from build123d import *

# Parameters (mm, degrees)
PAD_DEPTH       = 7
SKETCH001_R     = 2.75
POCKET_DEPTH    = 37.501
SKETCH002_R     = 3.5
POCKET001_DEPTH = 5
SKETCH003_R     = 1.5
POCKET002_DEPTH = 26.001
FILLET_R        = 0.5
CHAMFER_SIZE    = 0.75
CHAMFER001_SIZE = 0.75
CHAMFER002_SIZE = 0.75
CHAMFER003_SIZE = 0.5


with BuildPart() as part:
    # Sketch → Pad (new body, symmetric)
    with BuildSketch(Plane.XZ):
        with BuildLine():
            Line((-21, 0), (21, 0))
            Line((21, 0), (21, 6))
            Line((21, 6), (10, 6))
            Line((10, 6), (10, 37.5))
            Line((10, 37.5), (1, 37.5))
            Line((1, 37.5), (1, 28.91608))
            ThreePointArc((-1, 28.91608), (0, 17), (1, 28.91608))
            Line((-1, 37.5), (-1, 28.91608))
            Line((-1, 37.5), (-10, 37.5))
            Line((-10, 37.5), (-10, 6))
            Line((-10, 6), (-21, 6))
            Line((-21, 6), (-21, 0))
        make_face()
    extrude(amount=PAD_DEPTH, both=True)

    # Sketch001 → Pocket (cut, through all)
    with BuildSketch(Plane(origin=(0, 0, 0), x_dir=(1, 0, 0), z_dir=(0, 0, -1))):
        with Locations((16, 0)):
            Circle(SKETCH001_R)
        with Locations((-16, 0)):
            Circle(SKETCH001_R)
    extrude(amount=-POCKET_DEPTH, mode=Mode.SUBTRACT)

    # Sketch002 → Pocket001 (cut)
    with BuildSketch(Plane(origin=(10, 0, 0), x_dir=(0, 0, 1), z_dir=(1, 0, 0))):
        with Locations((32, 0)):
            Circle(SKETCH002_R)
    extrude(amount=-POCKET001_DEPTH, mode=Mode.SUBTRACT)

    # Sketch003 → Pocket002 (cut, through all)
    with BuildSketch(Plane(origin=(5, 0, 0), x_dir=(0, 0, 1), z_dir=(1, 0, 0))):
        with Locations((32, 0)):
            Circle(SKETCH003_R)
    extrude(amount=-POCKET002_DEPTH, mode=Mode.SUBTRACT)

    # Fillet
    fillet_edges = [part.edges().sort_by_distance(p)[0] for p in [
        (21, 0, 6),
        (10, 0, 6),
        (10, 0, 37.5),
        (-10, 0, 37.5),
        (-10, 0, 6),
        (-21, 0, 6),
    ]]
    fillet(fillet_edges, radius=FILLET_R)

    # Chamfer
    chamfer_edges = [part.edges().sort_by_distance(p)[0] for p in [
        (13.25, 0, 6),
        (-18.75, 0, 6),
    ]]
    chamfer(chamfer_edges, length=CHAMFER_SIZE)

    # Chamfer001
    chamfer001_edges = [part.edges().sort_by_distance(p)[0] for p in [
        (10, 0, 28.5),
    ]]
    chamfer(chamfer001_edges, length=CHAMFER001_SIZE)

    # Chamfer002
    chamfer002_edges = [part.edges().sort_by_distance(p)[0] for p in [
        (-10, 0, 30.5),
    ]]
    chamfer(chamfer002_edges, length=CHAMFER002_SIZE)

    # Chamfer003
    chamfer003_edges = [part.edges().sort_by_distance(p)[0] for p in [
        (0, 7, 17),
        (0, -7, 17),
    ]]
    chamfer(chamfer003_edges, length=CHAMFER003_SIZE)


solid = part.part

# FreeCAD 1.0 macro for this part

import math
import FreeCAD as App
import Part
import Sketcher

V = App.Vector
Q = App.Units.Quantity


def edges_at(feature, points):
    """Names of the edges that pass closest to the given points."""
    edges = feature.Shape.Edges
    near = lambda p: min(range(len(edges)), key=lambda i: edges[i].distToShape(Part.Vertex(*p))[0])
    return sorted({f"Edge{near(p) + 1}" for p in points})

doc = App.newDocument("Part")
params = doc.addObject("Spreadsheet::Sheet", "Params")
for row, (alias, value) in enumerate([
    ("sketch1_radius", "6 mm"),
    ("sketch1_width", "42 mm"),
    ("sketch1_width2", "11 mm"),
    ("sketch1_width3", "9 mm"),
    ("sketch1_height", "6 mm"),
    ("pad1_length", "14 mm"),
    ("sketch2_diameter", "5.5 mm"),
    ("sketch3_diameter", "7 mm"),
    ("pocket2_length", "5 mm"),
    ("sketch4_diameter", "3 mm"),
    ("fillet_radius", "0.5 mm"),
    ("chamfer_size", "0.75 mm"),
    ("chamfer2_size", "0.75 mm"),
    ("chamfer3_size", "0.75 mm"),
    ("chamfer4_size", "0.5 mm"),
], start=1):
    params.set(f"A{row}", alias)
    params.set(f"B{row}", "=" + value)
    params.setAlias(f"B{row}", alias)

body = doc.addObject("PartDesign::Body", "Body")

# Sketch on XZ plane
sketch1 = doc.addObject("Sketcher::SketchObject", "Sketch")
body.addObject(sketch1)
sketch1.AttachmentSupport = (doc.XZ_Plane, [""])
sketch1.MapMode = "FlatFace"
sketch1.addGeometry([
    Part.LineSegment(V(-21, 0, 0), V(21, 0, 0)),  # 0
    Part.LineSegment(V(21, 0, 0), V(21, 6, 0)),  # 1
    Part.LineSegment(V(21, 6, 0), V(10, 6, 0)),  # 2
    Part.LineSegment(V(10, 6, 0), V(10, 37.5, 0)),  # 3
    Part.LineSegment(V(10, 37.5, 0), V(1, 37.5, 0)),  # 4
    Part.LineSegment(V(1, 37.5, 0), V(1, 28.9, 0)),  # 5
    Part.ArcOfCircle(Part.Circle(V(0, 23, 0), V(0, 0, 1), 6), math.radians(100), math.radians(440)),  # 6
    Part.LineSegment(V(-1, 28.9, 0), V(-1, 37.5, 0)),  # 7
    Part.LineSegment(V(-1, 37.5, 0), V(-10, 37.5, 0)),  # 8
    Part.LineSegment(V(-10, 37.5, 0), V(-10, 6, 0)),  # 9
    Part.LineSegment(V(-10, 6, 0), V(-21, 6, 0)),  # 10
    Part.LineSegment(V(-21, 6, 0), V(-21, 0, 0)),  # 11
], False)
sketch1.addConstraint([
    Sketcher.Constraint("Coincident", 0, 2, 1, 1),
    Sketcher.Constraint("Coincident", 1, 2, 2, 1),
    Sketcher.Constraint("Coincident", 2, 2, 3, 1),
    Sketcher.Constraint("Coincident", 3, 2, 4, 1),
    Sketcher.Constraint("Coincident", 4, 2, 5, 1),
    Sketcher.Constraint("Coincident", 5, 2, 6, 2),
    Sketcher.Constraint("Coincident", 6, 1, 7, 1),
    Sketcher.Constraint("Coincident", 7, 2, 8, 1),
    Sketcher.Constraint("Coincident", 8, 2, 9, 1),
    Sketcher.Constraint("Coincident", 9, 2, 10, 1),
    Sketcher.Constraint("Coincident", 10, 2, 11, 1),
    Sketcher.Constraint("Coincident", 11, 2, 0, 1),
    Sketcher.Constraint("Horizontal", 0),
    Sketcher.Constraint("Vertical", 1),
    Sketcher.Constraint("Horizontal", 2),
    Sketcher.Constraint("Vertical", 3),
    Sketcher.Constraint("Horizontal", 4),
    Sketcher.Constraint("Vertical", 5),
    Sketcher.Constraint("Vertical", 7),
    Sketcher.Constraint("Horizontal", 8),
    Sketcher.Constraint("Vertical", 9),
    Sketcher.Constraint("Horizontal", 10),
    Sketcher.Constraint("Vertical", 11),
    Sketcher.Constraint("Symmetric", 0, 2, 11, 2, -1, 1),
    Sketcher.Constraint("Symmetric", 5, 2, 6, 1, -2),
    Sketcher.Constraint("Symmetric", 3, 2, 8, 2, -2),
    Sketcher.Constraint("Horizontal", 2, 2, 9, 2),
    Sketcher.Constraint("Radius", 6, Q("6 mm")),
    Sketcher.Constraint("DistanceX", 0, 1, 0, 2, Q("42 mm")),
    Sketcher.Constraint("DistanceX", 2, 2, 2, 1, Q("11 mm")),
    Sketcher.Constraint("DistanceX", 4, 2, 4, 1, Q("9 mm")),
    Sketcher.Constraint("DistanceY", 1, 1, 1, 2, Q("6 mm")),
    Sketcher.Constraint("DistanceY", 3, 1, 3, 2, Q("31.5 mm")),
    Sketcher.Constraint("DistanceY", -1, 1, 6, 3, Q("23 mm")),
])
sketch1.setExpression("Constraints[27]", "Params.sketch1_radius")
sketch1.setExpression("Constraints[28]", "Params.sketch1_width")
sketch1.setExpression("Constraints[29]", "Params.sketch1_width2")
sketch1.setExpression("Constraints[30]", "Params.sketch1_width3")
sketch1.setExpression("Constraints[31]", "Params.sketch1_height")
pad1 = doc.addObject("PartDesign::Pad", "Pad")
body.addObject(pad1)
pad1.Profile = sketch1
pad1.setExpression("Length", "Params.pad1_length")
pad1.Midplane = True

# Sketch on XY plane
sketch2 = doc.addObject("Sketcher::SketchObject", "Sketch001")
body.addObject(sketch2)
sketch2.AttachmentSupport = (doc.XY_Plane, [""])
sketch2.MapMode = "FlatFace"
sketch2.addGeometry([
    Part.Circle(V(16, 0, 0), V(0, 0, 1), 2.8),
    Part.Circle(V(-16, 0, 0), V(0, 0, 1), 2.8),
], False)
sketch2.addConstraint([
    Sketcher.Constraint("Equal", 0, 1),
    Sketcher.Constraint("Symmetric", 0, 3, 1, 3, -1, 1),
    Sketcher.Constraint("PointOnObject", 0, 3, -1),
    Sketcher.Constraint("Diameter", 0, Q("5.5 mm")),
    Sketcher.Constraint("DistanceX", -1, 1, 0, 3, Q("16 mm")),
])
sketch2.setExpression("Constraints[3]", "Params.sketch2_diameter")
pocket1 = doc.addObject("PartDesign::Pocket", "Pocket")
body.addObject(pocket1)
pocket1.Profile = sketch2
pocket1.Type = "ThroughAll"
pocket1.Reversed = True

# Sketch on YZ plane
sketch3 = doc.addObject("Sketcher::SketchObject", "Sketch002")
body.addObject(sketch3)
sketch3.AttachmentSupport = (doc.YZ_Plane, [""])
sketch3.MapMode = "FlatFace"
sketch3.AttachmentOffset = App.Placement(V(0, 0, 10), App.Rotation())
sketch3.addGeometry(Part.Circle(V(0, 32, 0), V(0, 0, 1), 3.5), False)
sketch3.addConstraint([
    Sketcher.Constraint("PointOnObject", 0, 3, -2),
    Sketcher.Constraint("Diameter", 0, Q("7 mm")),
    Sketcher.Constraint("DistanceY", -1, 1, 0, 3, Q("32 mm")),
])
sketch3.setExpression("Constraints[1]", "Params.sketch3_diameter")
pocket2 = doc.addObject("PartDesign::Pocket", "Pocket001")
body.addObject(pocket2)
pocket2.Profile = sketch3
pocket2.setExpression("Length", "Params.pocket2_length")

# Sketch on YZ plane
sketch4 = doc.addObject("Sketcher::SketchObject", "Sketch003")
body.addObject(sketch4)
sketch4.AttachmentSupport = (doc.YZ_Plane, [""])
sketch4.MapMode = "FlatFace"
sketch4.AttachmentOffset = App.Placement(V(0, 0, 5), App.Rotation())
sketch4.addGeometry(Part.Circle(V(0, 32, 0), V(0, 0, 1), 1.5), False)
sketch4.addConstraint([
    Sketcher.Constraint("PointOnObject", 0, 3, -2),
    Sketcher.Constraint("Diameter", 0, Q("3 mm")),
    Sketcher.Constraint("DistanceY", -1, 1, 0, 3, Q("32 mm")),
])
sketch4.setExpression("Constraints[1]", "Params.sketch4_diameter")
pocket3 = doc.addObject("PartDesign::Pocket", "Pocket002")
body.addObject(pocket3)
pocket3.Profile = sketch4
pocket3.Type = "ThroughAll"
doc.recompute()

fillet = doc.addObject("PartDesign::Fillet", "Fillet")
body.addObject(fillet)
fillet.Base = (pocket3, edges_at(pocket3, [
    (21, 0, 6),
    (10, 0, 6),
    (10, 0, 37.5),
    (-10, 0, 37.5),
    (-10, 0, 6),
    (-21, 0, 6),
]))
fillet.setExpression("Radius", "Params.fillet_radius")
doc.recompute()

chamfer = doc.addObject("PartDesign::Chamfer", "Chamfer")
body.addObject(chamfer)
chamfer.Base = (fillet, edges_at(fillet, [(13.25, 0, 6), (-18.75, 0, 6)]))
chamfer.setExpression("Size", "Params.chamfer_size")
doc.recompute()

chamfer2 = doc.addObject("PartDesign::Chamfer", "Chamfer001")
body.addObject(chamfer2)
chamfer2.Base = (chamfer, edges_at(chamfer, [(10, 0, 28.5)]))
chamfer2.setExpression("Size", "Params.chamfer2_size")
doc.recompute()

chamfer3 = doc.addObject("PartDesign::Chamfer", "Chamfer002")
body.addObject(chamfer3)
chamfer3.Base = (chamfer2, edges_at(chamfer2, [(-10, 0, 30.5)]))
chamfer3.setExpression("Size", "Params.chamfer3_size")
doc.recompute()

chamfer4 = doc.addObject("PartDesign::Chamfer", "Chamfer003")
body.addObject(chamfer4)
chamfer4.Base = (chamfer3, edges_at(chamfer3, [(0, 7, 17), (0, -7, 17)]))
chamfer4.setExpression("Size", "Params.chamfer4_size")

doc.recompute()
